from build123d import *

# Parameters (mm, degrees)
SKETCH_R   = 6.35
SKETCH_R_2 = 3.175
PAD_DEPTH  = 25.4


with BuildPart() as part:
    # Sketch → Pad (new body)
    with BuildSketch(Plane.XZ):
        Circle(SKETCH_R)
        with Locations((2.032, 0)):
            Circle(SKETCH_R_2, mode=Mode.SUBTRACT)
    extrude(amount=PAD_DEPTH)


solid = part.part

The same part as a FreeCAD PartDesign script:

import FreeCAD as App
import Part
import Sketcher

V = App.Vector
Q = App.Units.Quantity

doc = App.newDocument("Part")
body = doc.addObject("PartDesign::Body", "Body")

# Sketch on XZ plane
sketch1 = doc.addObject("Sketcher::SketchObject", "Sketch")
body.addObject(sketch1)
sketch1.AttachmentSupport = (doc.XZ_Plane, [""])
sketch1.MapMode = "FlatFace"
sketch1.addGeometry(Part.Circle(V(0, 0, 0), V(0, 0, 1), 6.3), False)
sketch1.addGeometry(Part.Circle(V(2, 0, 0), V(0, 0, 1), 3.2), False)
sketch1.addConstraint(Sketcher.Constraint("Coincident", 0, 3, -1, 1))
sketch1.addConstraint(Sketcher.Constraint("PointOnObject", 1, 3, -1))
sketch1.addConstraint(Sketcher.Constraint("Diameter", 0, Q("0.5 in")))
sketch1.addConstraint(Sketcher.Constraint("Diameter", 1, Q("0.25 in")))
sketch1.addConstraint(Sketcher.Constraint("DistanceX", -1, 1, 1, 3, Q("0.08 in")))
pad1 = doc.addObject("PartDesign::Pad", "Pad")
body.addObject(pad1)
pad1.Profile = sketch1
pad1.Length = Q("1 in")

doc.recompute()
